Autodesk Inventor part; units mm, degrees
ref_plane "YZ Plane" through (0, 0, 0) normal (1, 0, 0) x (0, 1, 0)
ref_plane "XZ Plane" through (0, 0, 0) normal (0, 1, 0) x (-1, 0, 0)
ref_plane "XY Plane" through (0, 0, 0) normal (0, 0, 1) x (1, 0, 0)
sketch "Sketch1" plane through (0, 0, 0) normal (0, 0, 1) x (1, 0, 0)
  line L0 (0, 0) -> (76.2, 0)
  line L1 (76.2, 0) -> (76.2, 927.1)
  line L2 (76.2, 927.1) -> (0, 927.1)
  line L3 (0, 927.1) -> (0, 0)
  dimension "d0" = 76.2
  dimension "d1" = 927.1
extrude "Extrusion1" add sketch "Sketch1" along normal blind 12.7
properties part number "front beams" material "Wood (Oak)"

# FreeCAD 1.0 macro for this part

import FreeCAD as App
import Part
import Sketcher
Q = App.Units.Quantity


def add_polygon(sketch, points):
    """Adds a closed chain of lines whose ends are joined by coincident constraints."""
    first, n = sketch.GeometryCount, len(points)
    for a, b in zip(points, points[1:] + points[:1]):
        sketch.addGeometry(Part.LineSegment(App.Vector(*a, 0), App.Vector(*b, 0)), False)
    for i in range(n):
        sketch.addConstraint(Sketcher.Constraint("Coincident", first + i, 2, first + (i + 1) % n, 1))

doc = App.newDocument("Part")
body = doc.addObject("PartDesign::Body", "Body")

# Sketch on XY plane
sketch1 = body.newObject("Sketcher::SketchObject", "Sketch")
sketch1.AttachmentSupport = (doc.getObject("XY_Plane"), [""])
sketch1.MapMode = "FlatFace"
add_polygon(sketch1, [(0, 927), (0, 0), (76, 0), (76, 927)])  # lines 0-3
sketch1.addConstraint([
    Sketcher.Constraint("Vertical", 0),
    Sketcher.Constraint("Horizontal", 1),
    Sketcher.Constraint("Vertical", 2),
    Sketcher.Constraint("Horizontal", 3),
    Sketcher.Constraint("Coincident", 0, 2, -1, 1),
    Sketcher.Constraint("DistanceX", 1, 1, 1, 2, Q("3 in")),
    Sketcher.Constraint("DistanceY", 0, 2, 0, 1, Q("36.5 in")),
])
pad1 = body.newObject("PartDesign::Pad", "Pad")
pad1.Profile = sketch1
pad1.Length = Q("0.5 in")

doc.recompute()
